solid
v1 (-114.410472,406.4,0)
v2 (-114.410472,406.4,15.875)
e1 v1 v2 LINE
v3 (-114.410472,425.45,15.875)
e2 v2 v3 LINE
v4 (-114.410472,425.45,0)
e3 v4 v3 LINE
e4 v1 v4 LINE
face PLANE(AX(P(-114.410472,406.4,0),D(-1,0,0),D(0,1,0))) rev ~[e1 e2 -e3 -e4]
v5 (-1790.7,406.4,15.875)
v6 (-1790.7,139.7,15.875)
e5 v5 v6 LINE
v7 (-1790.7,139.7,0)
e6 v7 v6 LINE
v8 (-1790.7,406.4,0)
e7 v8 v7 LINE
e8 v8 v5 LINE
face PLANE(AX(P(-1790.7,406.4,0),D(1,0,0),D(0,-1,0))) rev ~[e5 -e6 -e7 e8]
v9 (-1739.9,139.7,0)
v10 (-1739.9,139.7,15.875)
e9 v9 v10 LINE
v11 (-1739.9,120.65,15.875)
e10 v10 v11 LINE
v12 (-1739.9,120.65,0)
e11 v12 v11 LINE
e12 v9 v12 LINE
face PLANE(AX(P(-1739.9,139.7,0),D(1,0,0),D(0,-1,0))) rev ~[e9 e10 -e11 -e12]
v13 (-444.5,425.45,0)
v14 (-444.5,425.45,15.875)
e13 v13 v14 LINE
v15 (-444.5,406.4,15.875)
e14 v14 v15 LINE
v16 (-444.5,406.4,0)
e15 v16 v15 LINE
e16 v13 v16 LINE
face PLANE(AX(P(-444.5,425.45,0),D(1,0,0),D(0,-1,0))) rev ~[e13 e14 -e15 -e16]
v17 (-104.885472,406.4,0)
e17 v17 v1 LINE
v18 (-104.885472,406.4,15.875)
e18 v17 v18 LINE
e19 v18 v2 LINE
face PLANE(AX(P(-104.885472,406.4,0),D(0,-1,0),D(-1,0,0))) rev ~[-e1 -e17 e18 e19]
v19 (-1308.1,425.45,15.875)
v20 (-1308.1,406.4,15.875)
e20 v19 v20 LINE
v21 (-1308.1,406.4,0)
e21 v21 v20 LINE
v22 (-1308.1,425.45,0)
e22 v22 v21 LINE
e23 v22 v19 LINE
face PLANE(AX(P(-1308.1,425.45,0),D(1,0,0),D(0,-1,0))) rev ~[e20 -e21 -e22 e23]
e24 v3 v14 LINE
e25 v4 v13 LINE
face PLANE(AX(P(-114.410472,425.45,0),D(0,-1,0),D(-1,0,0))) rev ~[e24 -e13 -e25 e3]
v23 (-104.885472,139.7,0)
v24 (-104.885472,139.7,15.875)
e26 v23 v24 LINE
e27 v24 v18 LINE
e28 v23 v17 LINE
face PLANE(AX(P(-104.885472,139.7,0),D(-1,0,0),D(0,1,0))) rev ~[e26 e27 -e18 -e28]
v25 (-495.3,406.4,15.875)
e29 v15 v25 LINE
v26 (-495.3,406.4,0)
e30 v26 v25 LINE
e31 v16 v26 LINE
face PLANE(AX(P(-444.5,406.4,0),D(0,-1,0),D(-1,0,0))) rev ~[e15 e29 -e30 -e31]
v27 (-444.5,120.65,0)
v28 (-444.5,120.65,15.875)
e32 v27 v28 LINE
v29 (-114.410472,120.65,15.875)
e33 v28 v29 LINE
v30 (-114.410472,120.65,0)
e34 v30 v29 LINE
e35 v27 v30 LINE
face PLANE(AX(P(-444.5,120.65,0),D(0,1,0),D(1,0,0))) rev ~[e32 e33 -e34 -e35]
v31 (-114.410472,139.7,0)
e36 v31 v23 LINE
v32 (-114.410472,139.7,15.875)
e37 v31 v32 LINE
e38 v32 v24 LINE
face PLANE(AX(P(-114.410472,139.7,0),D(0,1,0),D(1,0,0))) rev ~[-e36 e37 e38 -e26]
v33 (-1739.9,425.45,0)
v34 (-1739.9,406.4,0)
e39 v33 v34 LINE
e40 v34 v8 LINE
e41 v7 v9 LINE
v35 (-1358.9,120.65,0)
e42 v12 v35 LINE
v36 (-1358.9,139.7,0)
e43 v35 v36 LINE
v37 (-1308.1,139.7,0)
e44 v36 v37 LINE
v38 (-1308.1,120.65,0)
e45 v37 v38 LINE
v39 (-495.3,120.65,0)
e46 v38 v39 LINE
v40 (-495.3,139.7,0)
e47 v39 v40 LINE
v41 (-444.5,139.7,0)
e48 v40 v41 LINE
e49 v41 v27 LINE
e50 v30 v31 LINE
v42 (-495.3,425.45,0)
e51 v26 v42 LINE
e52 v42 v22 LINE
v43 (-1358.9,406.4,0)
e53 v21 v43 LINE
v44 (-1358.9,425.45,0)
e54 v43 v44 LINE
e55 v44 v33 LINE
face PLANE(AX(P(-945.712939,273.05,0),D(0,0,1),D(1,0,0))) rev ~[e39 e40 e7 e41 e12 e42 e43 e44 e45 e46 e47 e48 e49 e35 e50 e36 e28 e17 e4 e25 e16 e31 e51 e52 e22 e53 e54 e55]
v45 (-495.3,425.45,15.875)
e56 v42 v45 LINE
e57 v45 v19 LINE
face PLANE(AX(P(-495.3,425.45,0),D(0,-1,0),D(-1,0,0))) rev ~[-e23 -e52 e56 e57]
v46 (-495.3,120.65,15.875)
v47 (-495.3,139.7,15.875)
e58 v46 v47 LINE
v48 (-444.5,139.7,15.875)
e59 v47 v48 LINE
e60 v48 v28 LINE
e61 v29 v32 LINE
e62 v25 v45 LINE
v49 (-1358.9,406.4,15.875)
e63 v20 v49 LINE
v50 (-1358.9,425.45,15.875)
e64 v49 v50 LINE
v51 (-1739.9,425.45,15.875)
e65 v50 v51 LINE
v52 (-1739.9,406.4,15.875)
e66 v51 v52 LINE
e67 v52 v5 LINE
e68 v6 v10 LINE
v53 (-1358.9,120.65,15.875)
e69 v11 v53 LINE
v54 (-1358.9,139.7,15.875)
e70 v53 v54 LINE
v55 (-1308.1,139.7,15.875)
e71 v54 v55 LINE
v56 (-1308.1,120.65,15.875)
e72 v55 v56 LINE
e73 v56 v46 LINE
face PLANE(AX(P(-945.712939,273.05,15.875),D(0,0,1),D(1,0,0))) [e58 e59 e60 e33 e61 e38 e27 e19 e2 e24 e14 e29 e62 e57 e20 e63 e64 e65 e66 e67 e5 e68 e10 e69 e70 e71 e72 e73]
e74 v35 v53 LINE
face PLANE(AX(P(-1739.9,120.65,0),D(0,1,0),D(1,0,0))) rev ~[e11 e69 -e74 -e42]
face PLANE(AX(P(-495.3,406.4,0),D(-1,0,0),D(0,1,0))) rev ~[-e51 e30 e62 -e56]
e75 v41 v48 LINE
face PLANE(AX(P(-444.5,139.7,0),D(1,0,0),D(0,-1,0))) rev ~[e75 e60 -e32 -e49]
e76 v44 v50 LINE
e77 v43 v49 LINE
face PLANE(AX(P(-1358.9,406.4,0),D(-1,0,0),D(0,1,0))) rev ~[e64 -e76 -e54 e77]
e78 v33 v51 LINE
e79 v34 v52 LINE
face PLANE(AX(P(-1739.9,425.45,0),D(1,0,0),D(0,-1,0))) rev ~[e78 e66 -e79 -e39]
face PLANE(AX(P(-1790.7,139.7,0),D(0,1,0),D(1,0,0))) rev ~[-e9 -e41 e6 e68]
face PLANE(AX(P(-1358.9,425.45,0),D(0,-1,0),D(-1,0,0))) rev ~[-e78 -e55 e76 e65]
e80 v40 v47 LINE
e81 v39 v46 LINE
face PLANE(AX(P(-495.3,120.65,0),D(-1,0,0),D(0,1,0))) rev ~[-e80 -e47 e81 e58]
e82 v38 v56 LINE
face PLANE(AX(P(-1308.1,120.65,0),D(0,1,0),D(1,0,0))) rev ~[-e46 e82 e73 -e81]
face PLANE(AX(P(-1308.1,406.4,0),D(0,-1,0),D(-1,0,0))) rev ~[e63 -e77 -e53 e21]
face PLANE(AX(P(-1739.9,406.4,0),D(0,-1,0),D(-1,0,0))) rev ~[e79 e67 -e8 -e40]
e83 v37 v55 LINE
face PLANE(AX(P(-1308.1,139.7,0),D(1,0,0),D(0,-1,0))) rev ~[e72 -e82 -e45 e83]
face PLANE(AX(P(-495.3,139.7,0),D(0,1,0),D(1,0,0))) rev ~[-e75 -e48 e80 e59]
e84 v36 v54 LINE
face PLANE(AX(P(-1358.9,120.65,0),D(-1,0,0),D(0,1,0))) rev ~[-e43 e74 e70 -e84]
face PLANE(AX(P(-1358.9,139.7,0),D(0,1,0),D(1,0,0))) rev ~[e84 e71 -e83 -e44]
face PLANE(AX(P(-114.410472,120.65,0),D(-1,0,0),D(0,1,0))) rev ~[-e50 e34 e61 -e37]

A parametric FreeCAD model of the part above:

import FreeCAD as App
import Part
import Sketcher

V = App.Vector
Q = App.Units.Quantity

doc = App.newDocument("Part")
params = doc.addObject("Spreadsheet::Sheet", "Params")
for row, (alias, value) in enumerate([
    ("sketch1_width", "2 in"),
    ("sketch1_width2", "32 in"),
    ("sketch1_width3", "15 in"),
    ("sketch1_height", "10.5 in"),
    ("sketch1_width4", "0.375 in"),
    ("pad1_length", "0.625 in"),
], start=1):
    params.set(f"A{row}", alias)
    params.set(f"B{row}", "=" + value)
    params.setAlias(f"B{row}", alias)

body = doc.addObject("PartDesign::Body", "Body")

# Sketch on XY plane
sketch1 = body.newObject("Sketcher::SketchObject", "Sketch")
sketch1.AttachmentSupport = (doc.getObject("XY_Plane"), [""])
sketch1.MapMode = "FlatFace"
sketch1.addGeometry([
    Part.LineSegment(V(-114, 425, 0), V(-444, 425, 0)),  # 0
    Part.LineSegment(V(-444, 425, 0), V(-444, 406, 0)),  # 1
    Part.LineSegment(V(-444, 406, 0), V(-495, 406, 0)),  # 2
    Part.LineSegment(V(-495, 406, 0), V(-495, 425, 0)),  # 3
    Part.LineSegment(V(-495, 425, 0), V(-1308, 425, 0)),  # 4
    Part.LineSegment(V(-1308, 425, 0), V(-1308, 406, 0)),  # 5
    Part.LineSegment(V(-1308, 406, 0), V(-1359, 406, 0)),  # 6
    Part.LineSegment(V(-1359, 406, 0), V(-1359, 425, 0)),  # 7
    Part.LineSegment(V(-1359, 425, 0), V(-1740, 425, 0)),  # 8
    Part.LineSegment(V(-1740, 425, 0), V(-1740, 406, 0)),  # 9
    Part.LineSegment(V(-1740, 406, 0), V(-1791, 406, 0)),  # 10
    Part.LineSegment(V(-1791, 406, 0), V(-1791, 140, 0)),  # 11
    Part.LineSegment(V(-1791, 140, 0), V(-1740, 140, 0)),  # 12
    Part.LineSegment(V(-1740, 140, 0), V(-1740, 121, 0)),  # 13
    Part.LineSegment(V(-1740, 121, 0), V(-1359, 121, 0)),  # 14
    Part.LineSegment(V(-1359, 121, 0), V(-1359, 140, 0)),  # 15
    Part.LineSegment(V(-1359, 140, 0), V(-1308, 140, 0)),  # 16
    Part.LineSegment(V(-1308, 140, 0), V(-1308, 121, 0)),  # 17
    Part.LineSegment(V(-1308, 121, 0), V(-495, 121, 0)),  # 18
    Part.LineSegment(V(-495, 121, 0), V(-495, 140, 0)),  # 19
    Part.LineSegment(V(-495, 140, 0), V(-444, 140, 0)),  # 20
    Part.LineSegment(V(-444, 140, 0), V(-444, 121, 0)),  # 21
    Part.LineSegment(V(-444, 121, 0), V(-114, 121, 0)),  # 22
    Part.LineSegment(V(-114, 121, 0), V(-114, 140, 0)),  # 23
    Part.LineSegment(V(-114, 140, 0), V(-105, 140, 0)),  # 24
    Part.LineSegment(V(-105, 140, 0), V(-105, 406, 0)),  # 25
    Part.LineSegment(V(-105, 406, 0), V(-114, 406, 0)),  # 26
    Part.LineSegment(V(-114, 406, 0), V(-114, 425, 0)),  # 27
], False)
sketch1.addConstraint([
    Sketcher.Constraint("Coincident", 0, 2, 1, 1),
    Sketcher.Constraint("Coincident", 1, 2, 2, 1),
    Sketcher.Constraint("Coincident", 2, 2, 3, 1),
    Sketcher.Constraint("Coincident", 3, 2, 4, 1),
    Sketcher.Constraint("Coincident", 4, 2, 5, 1),
    Sketcher.Constraint("Coincident", 5, 2, 6, 1),
    Sketcher.Constraint("Coincident", 6, 2, 7, 1),
    Sketcher.Constraint("Coincident", 7, 2, 8, 1),
    Sketcher.Constraint("Coincident", 8, 2, 9, 1),
    Sketcher.Constraint("Coincident", 9, 2, 10, 1),
    Sketcher.Constraint("Coincident", 10, 2, 11, 1),
    Sketcher.Constraint("Coincident", 11, 2, 12, 1),
    Sketcher.Constraint("Coincident", 12, 2, 13, 1),
    Sketcher.Constraint("Coincident", 13, 2, 14, 1),
    Sketcher.Constraint("Coincident", 14, 2, 15, 1),
    Sketcher.Constraint("Coincident", 15, 2, 16, 1),
    Sketcher.Constraint("Coincident", 16, 2, 17, 1),
    Sketcher.Constraint("Coincident", 17, 2, 18, 1),
    Sketcher.Constraint("Coincident", 18, 2, 19, 1),
    Sketcher.Constraint("Coincident", 19, 2, 20, 1),
    Sketcher.Constraint("Coincident", 20, 2, 21, 1),
    Sketcher.Constraint("Coincident", 21, 2, 22, 1),
    Sketcher.Constraint("Coincident", 22, 2, 23, 1),
    Sketcher.Constraint("Coincident", 23, 2, 24, 1),
    Sketcher.Constraint("Coincident", 24, 2, 25, 1),
    Sketcher.Constraint("Coincident", 25, 2, 26, 1),
    Sketcher.Constraint("Coincident", 26, 2, 27, 1),
    Sketcher.Constraint("Coincident", 27, 2, 0, 1),
    Sketcher.Constraint("Horizontal", 0),
    Sketcher.Constraint("Vertical", 1),
    Sketcher.Constraint("Horizontal", 2),
    Sketcher.Constraint("Vertical", 3),
    Sketcher.Constraint("Horizontal", 4),
    Sketcher.Constraint("Vertical", 5),
    Sketcher.Constraint("Horizontal", 6),
    Sketcher.Constraint("Vertical", 7),
    Sketcher.Constraint("Horizontal", 8),
    Sketcher.Constraint("Vertical", 9),
    Sketcher.Constraint("Horizontal", 10),
    Sketcher.Constraint("Vertical", 11),
    Sketcher.Constraint("Horizontal", 12),
    Sketcher.Constraint("Vertical", 13),
    Sketcher.Constraint("Horizontal", 14),
    Sketcher.Constraint("Vertical", 15),
    Sketcher.Constraint("Horizontal", 16),
    Sketcher.Constraint("Vertical", 17),
    Sketcher.Constraint("Horizontal", 18),
    Sketcher.Constraint("Vertical", 19),
    Sketcher.Constraint("Horizontal", 20),
    Sketcher.Constraint("Vertical", 21),
    Sketcher.Constraint("Horizontal", 22),
    Sketcher.Constraint("Vertical", 23),
    Sketcher.Constraint("Horizontal", 24),
    Sketcher.Constraint("Vertical", 25),
    Sketcher.Constraint("Horizontal", 26),
    Sketcher.Constraint("Vertical", 27),
    Sketcher.Constraint("Horizontal", 0, 2, 3, 2),
    Sketcher.Constraint("Horizontal", 2, 2, 5, 2),
    Sketcher.Constraint("Horizontal", 4, 2, 7, 2),
    Sketcher.Constraint("Horizontal", 6, 2, 9, 2),
    Sketcher.Constraint("Horizontal", 12, 2, 15, 2),
    Sketcher.Constraint("Horizontal", 14, 2, 17, 2),
    Sketcher.Constraint("Horizontal", 16, 2, 19, 2),
    Sketcher.Constraint("Horizontal", 18, 2, 21, 2),
    Sketcher.Constraint("Horizontal", 20, 2, 23, 2),
    Sketcher.Constraint("Horizontal", 10, 2, 25, 2),
    Sketcher.Constraint("Vertical", 9, 2, 12, 2),
    Sketcher.Constraint("Vertical", 7, 2, 14, 2),
    Sketcher.Constraint("Vertical", 5, 2, 16, 2),
    Sketcher.Constraint("Vertical", 3, 2, 18, 2),
    Sketcher.Constraint("Vertical", 1, 2, 20, 2),
    Sketcher.Constraint("Vertical", 23, 2, 26, 2),
    Sketcher.Constraint("Equal", 2, 6),
    Sketcher.Constraint("Equal", 6, 10),
    Sketcher.Constraint("Equal", 9, 13),
    Sketcher.Constraint("DistanceX", 2, 2, 2, 1, Q("2 in")),
    Sketcher.Constraint("DistanceX", 4, 2, 4, 1, Q("32 in")),
    Sketcher.Constraint("DistanceX", 8, 2, 8, 1, Q("15 in")),
    Sketcher.Constraint("DistanceY", 11, 2, 11, 1, Q("10.5 in")),
    Sketcher.Constraint("DistanceY", -1, 1, 1, 2, Q("16 in")),
    Sketcher.Constraint("DistanceY", 13, 2, 8, 2, Q("12 in")),
    Sketcher.Constraint("DistanceX", 0, 2, -1, 1, Q("17.5 in")),
    Sketcher.Constraint("DistanceX", 24, 1, 24, 2, Q("0.375 in")),
    Sketcher.Constraint("DistanceX", 0, 2, 0, 1, Q("330.089528 mm")),
])
sketch1.setExpression("Constraints[75]", "Params.sketch1_width")
sketch1.setExpression("Constraints[76]", "Params.sketch1_width2")
sketch1.setExpression("Constraints[77]", "Params.sketch1_width3")
sketch1.setExpression("Constraints[78]", "Params.sketch1_height")
sketch1.setExpression("Constraints[82]", "Params.sketch1_width4")
pad1 = body.newObject("PartDesign::Pad", "Pad")
pad1.Profile = sketch1
pad1.setExpression("Length", "Params.pad1_length")

doc.recompute()
